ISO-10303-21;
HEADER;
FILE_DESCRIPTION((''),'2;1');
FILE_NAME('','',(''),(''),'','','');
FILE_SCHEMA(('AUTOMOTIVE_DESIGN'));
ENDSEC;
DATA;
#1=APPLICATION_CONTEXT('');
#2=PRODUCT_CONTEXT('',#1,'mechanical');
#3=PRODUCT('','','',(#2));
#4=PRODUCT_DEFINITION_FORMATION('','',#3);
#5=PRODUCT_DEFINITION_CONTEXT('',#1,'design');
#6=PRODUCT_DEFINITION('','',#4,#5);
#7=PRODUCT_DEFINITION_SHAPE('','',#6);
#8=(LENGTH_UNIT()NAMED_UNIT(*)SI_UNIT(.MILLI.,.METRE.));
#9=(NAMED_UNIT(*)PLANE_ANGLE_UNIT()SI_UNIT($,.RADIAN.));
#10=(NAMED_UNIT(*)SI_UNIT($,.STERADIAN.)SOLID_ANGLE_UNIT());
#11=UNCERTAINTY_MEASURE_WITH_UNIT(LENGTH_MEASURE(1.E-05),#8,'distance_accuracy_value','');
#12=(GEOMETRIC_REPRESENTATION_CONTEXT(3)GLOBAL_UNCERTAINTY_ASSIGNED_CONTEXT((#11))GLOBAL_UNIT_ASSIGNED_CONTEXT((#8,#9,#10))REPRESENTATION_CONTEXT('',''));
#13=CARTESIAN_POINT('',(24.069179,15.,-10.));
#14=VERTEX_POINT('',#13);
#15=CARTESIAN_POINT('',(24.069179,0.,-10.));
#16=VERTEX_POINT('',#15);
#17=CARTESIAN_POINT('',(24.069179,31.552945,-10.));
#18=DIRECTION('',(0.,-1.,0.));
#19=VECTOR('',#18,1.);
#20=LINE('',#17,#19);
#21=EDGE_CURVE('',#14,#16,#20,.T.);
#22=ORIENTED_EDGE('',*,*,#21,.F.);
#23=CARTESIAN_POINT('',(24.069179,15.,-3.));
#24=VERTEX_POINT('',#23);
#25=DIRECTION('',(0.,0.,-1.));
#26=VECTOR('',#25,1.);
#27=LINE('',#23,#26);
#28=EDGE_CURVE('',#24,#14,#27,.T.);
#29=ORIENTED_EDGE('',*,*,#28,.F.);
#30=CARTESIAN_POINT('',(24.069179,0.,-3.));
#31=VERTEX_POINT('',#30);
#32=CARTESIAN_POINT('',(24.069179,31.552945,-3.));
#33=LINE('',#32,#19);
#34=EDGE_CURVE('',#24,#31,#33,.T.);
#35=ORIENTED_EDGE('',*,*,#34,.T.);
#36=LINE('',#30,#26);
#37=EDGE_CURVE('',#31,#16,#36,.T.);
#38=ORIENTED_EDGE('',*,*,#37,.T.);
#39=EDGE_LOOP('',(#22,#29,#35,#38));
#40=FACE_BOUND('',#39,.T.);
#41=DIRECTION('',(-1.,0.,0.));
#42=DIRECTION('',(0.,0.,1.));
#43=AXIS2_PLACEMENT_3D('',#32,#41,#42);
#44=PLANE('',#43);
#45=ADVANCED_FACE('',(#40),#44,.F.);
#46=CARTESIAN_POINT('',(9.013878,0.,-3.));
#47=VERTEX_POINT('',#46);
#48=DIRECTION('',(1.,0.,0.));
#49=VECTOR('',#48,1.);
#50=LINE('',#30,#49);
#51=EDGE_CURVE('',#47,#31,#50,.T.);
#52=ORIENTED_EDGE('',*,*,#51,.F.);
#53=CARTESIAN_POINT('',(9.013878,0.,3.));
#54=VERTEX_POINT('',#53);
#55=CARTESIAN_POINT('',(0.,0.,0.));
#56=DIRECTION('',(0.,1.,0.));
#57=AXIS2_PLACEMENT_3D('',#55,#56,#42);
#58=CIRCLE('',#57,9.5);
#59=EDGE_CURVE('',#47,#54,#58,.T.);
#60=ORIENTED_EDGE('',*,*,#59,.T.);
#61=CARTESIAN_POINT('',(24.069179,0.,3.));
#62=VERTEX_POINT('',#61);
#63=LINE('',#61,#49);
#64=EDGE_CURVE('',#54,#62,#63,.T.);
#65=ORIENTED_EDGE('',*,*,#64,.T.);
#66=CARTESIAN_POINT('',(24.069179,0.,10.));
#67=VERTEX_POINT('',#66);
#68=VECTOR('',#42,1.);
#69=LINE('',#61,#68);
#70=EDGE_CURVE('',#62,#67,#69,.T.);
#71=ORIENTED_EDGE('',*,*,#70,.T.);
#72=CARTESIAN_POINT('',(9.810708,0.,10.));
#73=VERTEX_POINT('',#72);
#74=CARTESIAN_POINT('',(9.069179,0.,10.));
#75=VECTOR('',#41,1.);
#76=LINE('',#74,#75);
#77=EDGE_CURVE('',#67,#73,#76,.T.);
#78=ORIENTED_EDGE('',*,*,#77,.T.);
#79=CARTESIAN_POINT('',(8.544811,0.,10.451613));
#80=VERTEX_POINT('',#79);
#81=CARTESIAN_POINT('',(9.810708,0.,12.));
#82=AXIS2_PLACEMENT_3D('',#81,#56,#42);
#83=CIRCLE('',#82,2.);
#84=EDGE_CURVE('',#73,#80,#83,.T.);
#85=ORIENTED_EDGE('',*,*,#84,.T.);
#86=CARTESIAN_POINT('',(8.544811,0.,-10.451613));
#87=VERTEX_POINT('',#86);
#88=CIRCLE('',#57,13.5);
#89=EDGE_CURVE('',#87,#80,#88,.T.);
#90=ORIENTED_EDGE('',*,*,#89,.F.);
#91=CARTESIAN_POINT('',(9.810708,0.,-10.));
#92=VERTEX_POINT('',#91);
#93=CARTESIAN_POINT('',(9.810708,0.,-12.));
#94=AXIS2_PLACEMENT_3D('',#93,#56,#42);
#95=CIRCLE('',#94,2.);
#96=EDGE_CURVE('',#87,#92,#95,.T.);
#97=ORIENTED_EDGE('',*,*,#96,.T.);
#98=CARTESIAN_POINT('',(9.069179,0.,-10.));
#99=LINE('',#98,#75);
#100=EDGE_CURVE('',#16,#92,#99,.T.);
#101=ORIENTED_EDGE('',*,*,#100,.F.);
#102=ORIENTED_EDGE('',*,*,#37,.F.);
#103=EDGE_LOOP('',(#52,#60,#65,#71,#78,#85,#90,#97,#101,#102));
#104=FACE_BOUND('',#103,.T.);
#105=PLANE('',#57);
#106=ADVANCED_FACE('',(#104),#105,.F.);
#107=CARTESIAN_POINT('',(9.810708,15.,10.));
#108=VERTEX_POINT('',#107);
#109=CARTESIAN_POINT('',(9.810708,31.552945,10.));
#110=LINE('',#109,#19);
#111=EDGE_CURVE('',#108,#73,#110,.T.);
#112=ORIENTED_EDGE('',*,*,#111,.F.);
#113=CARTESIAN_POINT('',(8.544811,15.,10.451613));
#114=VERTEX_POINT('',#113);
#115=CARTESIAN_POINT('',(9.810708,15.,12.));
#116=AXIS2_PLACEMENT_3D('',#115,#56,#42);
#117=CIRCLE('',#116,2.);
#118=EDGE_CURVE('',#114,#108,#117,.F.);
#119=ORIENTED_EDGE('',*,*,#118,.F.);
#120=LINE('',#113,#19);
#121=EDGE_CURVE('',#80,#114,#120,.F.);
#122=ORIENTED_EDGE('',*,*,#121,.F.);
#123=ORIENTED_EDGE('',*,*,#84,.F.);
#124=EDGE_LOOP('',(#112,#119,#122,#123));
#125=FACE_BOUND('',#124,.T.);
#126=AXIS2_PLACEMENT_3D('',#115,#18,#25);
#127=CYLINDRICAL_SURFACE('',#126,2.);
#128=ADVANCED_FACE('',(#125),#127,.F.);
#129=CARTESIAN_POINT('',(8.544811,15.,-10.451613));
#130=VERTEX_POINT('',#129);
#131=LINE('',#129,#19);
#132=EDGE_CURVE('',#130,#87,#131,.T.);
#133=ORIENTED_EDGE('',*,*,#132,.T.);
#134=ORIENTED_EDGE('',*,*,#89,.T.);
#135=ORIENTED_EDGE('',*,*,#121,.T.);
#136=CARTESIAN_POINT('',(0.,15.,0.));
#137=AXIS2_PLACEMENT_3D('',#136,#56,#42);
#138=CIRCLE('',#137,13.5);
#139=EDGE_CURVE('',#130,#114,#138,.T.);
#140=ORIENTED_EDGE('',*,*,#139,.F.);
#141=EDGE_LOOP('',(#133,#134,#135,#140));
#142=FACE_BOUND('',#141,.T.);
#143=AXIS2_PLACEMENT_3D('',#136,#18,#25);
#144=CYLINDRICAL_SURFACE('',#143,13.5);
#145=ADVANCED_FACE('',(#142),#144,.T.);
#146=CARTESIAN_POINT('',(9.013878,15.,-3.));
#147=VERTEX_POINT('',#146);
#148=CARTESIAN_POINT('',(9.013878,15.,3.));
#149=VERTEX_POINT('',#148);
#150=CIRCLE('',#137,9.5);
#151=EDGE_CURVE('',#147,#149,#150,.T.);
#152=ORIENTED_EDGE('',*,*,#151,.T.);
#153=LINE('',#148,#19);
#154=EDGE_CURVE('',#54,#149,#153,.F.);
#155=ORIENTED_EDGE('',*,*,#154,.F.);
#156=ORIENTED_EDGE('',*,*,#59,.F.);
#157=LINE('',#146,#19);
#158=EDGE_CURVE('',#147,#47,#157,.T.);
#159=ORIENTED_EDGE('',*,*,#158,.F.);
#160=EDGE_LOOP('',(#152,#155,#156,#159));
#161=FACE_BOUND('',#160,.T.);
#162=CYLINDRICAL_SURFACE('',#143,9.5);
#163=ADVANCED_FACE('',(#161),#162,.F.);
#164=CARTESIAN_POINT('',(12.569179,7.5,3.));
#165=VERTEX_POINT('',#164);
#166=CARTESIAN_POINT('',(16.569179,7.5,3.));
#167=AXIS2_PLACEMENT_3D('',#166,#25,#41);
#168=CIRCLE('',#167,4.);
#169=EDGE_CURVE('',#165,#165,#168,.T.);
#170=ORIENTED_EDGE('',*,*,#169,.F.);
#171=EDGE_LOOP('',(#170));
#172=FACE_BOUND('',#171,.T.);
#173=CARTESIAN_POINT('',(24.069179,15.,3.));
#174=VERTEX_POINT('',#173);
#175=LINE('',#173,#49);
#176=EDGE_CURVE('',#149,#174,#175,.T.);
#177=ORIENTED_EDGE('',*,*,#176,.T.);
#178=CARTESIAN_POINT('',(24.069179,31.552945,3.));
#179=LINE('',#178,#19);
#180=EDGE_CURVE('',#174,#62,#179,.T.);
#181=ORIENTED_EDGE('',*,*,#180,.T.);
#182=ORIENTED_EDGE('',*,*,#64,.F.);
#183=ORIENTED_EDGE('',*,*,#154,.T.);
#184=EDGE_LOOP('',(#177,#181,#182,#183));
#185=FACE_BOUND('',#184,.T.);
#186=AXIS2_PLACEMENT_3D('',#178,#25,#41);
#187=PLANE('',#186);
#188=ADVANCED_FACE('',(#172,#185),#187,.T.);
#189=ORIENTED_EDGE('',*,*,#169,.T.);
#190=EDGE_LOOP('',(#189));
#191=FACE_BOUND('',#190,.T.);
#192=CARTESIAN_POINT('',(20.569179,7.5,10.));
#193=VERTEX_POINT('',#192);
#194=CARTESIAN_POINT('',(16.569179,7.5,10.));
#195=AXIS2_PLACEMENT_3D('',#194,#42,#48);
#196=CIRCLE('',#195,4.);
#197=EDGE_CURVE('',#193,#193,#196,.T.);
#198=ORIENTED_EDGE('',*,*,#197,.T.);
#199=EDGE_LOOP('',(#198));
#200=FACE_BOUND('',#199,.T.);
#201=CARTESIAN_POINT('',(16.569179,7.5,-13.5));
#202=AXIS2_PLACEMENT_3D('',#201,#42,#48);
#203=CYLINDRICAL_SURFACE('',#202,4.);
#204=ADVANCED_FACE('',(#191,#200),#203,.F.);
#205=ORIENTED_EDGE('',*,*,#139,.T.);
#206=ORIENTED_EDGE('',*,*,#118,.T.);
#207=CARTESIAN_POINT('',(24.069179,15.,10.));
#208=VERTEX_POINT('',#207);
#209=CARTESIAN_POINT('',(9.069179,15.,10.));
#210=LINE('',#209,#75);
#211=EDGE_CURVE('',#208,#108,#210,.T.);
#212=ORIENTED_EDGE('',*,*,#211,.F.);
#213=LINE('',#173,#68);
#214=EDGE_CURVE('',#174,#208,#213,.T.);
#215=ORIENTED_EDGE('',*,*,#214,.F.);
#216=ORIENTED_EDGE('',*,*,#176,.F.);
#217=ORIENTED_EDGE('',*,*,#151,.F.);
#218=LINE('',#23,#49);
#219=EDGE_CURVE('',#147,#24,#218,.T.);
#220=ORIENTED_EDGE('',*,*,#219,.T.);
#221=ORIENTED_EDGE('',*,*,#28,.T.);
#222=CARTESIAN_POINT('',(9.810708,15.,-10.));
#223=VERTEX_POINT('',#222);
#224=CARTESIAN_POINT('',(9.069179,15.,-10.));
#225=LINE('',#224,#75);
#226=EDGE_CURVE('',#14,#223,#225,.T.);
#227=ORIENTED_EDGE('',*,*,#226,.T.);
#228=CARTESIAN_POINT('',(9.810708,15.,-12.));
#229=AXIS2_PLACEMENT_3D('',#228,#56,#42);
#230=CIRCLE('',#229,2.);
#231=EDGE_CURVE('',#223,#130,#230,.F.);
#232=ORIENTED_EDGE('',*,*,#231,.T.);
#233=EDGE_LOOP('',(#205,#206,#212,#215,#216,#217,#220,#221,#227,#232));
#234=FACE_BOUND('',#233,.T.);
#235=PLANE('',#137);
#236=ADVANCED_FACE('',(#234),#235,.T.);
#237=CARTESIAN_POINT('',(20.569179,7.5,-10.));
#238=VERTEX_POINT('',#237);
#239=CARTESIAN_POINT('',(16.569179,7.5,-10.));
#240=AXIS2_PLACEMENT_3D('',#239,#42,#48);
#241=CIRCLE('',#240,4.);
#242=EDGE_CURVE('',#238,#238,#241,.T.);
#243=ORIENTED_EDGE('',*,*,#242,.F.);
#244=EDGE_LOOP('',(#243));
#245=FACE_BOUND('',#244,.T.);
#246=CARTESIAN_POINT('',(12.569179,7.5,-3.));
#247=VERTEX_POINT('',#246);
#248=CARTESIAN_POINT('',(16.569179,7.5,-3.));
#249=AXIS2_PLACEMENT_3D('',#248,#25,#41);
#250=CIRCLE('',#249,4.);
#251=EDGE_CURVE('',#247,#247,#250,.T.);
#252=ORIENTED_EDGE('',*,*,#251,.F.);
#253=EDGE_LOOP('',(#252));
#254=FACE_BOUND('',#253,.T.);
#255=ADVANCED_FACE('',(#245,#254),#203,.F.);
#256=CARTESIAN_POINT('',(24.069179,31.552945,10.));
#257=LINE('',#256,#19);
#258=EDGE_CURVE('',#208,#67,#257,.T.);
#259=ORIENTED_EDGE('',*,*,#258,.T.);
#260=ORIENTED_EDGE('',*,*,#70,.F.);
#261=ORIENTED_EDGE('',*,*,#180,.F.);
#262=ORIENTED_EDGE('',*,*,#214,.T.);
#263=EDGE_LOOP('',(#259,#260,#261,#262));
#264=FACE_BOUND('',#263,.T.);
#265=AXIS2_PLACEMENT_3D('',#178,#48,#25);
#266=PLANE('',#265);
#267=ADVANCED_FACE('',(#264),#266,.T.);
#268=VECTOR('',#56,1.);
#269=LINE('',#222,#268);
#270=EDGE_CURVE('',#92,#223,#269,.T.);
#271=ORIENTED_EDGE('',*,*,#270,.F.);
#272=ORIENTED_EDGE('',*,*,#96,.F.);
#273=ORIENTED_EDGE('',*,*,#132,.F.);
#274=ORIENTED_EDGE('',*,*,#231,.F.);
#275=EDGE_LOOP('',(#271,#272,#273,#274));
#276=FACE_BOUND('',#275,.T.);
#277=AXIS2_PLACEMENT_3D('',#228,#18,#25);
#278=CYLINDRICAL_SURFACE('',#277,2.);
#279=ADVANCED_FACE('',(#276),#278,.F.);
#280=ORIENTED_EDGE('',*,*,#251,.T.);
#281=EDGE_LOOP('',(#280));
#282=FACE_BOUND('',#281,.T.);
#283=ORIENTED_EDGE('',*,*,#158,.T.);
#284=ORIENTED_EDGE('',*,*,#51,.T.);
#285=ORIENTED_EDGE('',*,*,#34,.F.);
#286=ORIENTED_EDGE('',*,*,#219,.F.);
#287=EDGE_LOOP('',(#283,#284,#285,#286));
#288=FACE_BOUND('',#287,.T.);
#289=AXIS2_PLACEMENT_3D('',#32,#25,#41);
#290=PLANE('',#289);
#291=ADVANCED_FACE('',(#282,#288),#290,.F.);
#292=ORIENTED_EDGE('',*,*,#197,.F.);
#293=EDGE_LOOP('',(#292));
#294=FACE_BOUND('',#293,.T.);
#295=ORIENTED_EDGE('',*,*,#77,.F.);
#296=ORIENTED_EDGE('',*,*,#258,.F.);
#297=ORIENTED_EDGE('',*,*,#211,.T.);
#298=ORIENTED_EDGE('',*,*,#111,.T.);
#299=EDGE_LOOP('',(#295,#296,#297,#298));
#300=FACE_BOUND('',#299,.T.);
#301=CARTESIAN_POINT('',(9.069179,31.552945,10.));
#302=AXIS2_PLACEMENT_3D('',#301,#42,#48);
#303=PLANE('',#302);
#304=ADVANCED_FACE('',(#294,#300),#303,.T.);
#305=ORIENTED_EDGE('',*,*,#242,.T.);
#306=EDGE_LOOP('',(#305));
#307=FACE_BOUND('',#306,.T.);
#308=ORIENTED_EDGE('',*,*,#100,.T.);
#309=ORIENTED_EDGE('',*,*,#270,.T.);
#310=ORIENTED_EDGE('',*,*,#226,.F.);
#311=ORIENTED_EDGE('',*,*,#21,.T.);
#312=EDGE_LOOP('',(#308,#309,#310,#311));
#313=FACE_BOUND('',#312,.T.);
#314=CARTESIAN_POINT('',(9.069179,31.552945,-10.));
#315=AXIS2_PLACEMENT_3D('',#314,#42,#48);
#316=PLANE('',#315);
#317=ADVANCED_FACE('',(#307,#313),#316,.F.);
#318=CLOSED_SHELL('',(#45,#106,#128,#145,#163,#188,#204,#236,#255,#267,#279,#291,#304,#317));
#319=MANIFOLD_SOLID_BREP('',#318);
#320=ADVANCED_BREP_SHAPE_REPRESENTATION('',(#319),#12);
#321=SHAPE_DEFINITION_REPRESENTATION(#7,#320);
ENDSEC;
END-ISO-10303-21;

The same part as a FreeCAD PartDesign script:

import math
import FreeCAD as App
import Part
import Sketcher
Q = App.Units.Quantity


def edges_at(feature, points):
    """Names of the edges that pass closest to the given points."""
    edges = feature.Shape.Edges
    near = lambda p: min(range(len(edges)), key=lambda i: edges[i].distToShape(Part.Vertex(*p))[0])
    return sorted({f"Edge{near(p) + 1}" for p in points})


def add_polygon(sketch, points):
    """Adds a closed chain of lines whose ends are joined by coincident constraints."""
    first, n = sketch.GeometryCount, len(points)
    for a, b in zip(points, points[1:] + points[:1]):
        sketch.addGeometry(Part.LineSegment(App.Vector(*a, 0), App.Vector(*b, 0)), False)
    for i in range(n):
        sketch.addConstraint(Sketcher.Constraint("Coincident", first + i, 2, first + (i + 1) % n, 1))

doc = App.newDocument("Part")
params = doc.addObject("Spreadsheet::Sheet", "Params")
for row, (alias, value) in enumerate([
    ("sketch1_diameter", "27 mm"),
    ("sketch1_diameter2", "19 mm"),
    ("pad1_length", "15 mm"),
    ("sketch2_radius", "13.5 mm"),
    ("sketch2_width", "15 mm"),
    ("sketch2_height", "7 mm"),
    ("pad2_length", "15 mm"),
    ("sketch3_height", "6 mm"),
    ("sketch4_diameter", "8 mm"),
    ("fillet_radius", "2 mm"),
    ("fillet2_radius", "2 mm"),
], start=1):
    params.set(f"A{row}", alias)
    params.set(f"B{row}", "=" + value)
    params.setAlias(f"B{row}", alias)

body = doc.addObject("PartDesign::Body", "Body")

# Sketch on XZ plane
sketch1 = body.newObject("Sketcher::SketchObject", "Sketch")
sketch1.AttachmentSupport = (doc.getObject("XZ_Plane"), [""])
sketch1.MapMode = "FlatFace"
sketch1.addGeometry([
    Part.Circle(App.Vector(0, 0, 0), App.Vector(0, 0, 1), 14),
    Part.Circle(App.Vector(0, 0, 0), App.Vector(0, 0, 1), 10),
], False)
sketch1.addConstraint([
    Sketcher.Constraint("Coincident", 0, 3, -1, 1),
    Sketcher.Constraint("Coincident", 1, 3, -1, 1),
    Sketcher.Constraint("Diameter", 0, Q("27 mm")),
    Sketcher.Constraint("Diameter", 1, Q("19 mm")),
])
sketch1.setExpression("Constraints[2]", "Params.sketch1_diameter")
sketch1.setExpression("Constraints[3]", "Params.sketch1_diameter2")
pad1 = body.newObject("PartDesign::Pad", "Pad")
pad1.Profile = sketch1
pad1.setExpression("Length", "Params.pad1_length")
pad1.Reversed = True

# Sketch on XZ plane
sketch2 = body.newObject("Sketcher::SketchObject", "Sketch001")
sketch2.AttachmentSupport = (doc.getObject("XZ_Plane"), [""])
sketch2.MapMode = "FlatFace"
sketch2.addGeometry([
    Part.LineSegment(App.Vector(13, -3, 0), App.Vector(24, -3, 0)),
    Part.LineSegment(App.Vector(24, -3, 0), App.Vector(24, -10, 0)),
    Part.LineSegment(App.Vector(24, -10, 0), App.Vector(9, -10, 0)),
    Part.ArcOfCircle(Part.Circle(App.Vector(0, 0, 0), App.Vector(0, 0, 1), 13), math.radians(-48), math.radians(-13)),
], False)
sketch2.addConstraint([
    Sketcher.Constraint("Coincident", 0, 2, 1, 1),
    Sketcher.Constraint("Coincident", 1, 2, 2, 1),
    Sketcher.Constraint("Coincident", 2, 2, 3, 1),
    Sketcher.Constraint("Coincident", 3, 2, 0, 1),
    Sketcher.Constraint("Horizontal", 0),
    Sketcher.Constraint("Vertical", 1),
    Sketcher.Constraint("Horizontal", 2),
    Sketcher.Constraint("Coincident", 3, 3, -1, 1),
    Sketcher.Constraint("Radius", 3, Q("13.5 mm")),
    Sketcher.Constraint("DistanceX", 2, 2, 2, 1, Q("15 mm")),
    Sketcher.Constraint("DistanceY", 1, 2, 1, 1, Q("7 mm")),
    Sketcher.Constraint("DistanceY", 0, 2, -1, 1, Q("3 mm")),
])
sketch2.setExpression("Constraints[8]", "Params.sketch2_radius")
sketch2.setExpression("Constraints[9]", "Params.sketch2_width")
sketch2.setExpression("Constraints[10]", "Params.sketch2_height")
pad2 = body.newObject("PartDesign::Pad", "Pad001")
pad2.Profile = sketch2
pad2.setExpression("Length", "Params.pad2_length")
pad2.Reversed = True
doc.recompute()

mirrored = body.newObject("PartDesign::Mirrored", "Mirrored")
mirrored.Originals = [pad2]
mirrored.MirrorPlane = (doc.getObject("XY_Plane"), [""])
body.Tip = mirrored

# Sketch on XZ plane
sketch3 = body.newObject("Sketcher::SketchObject", "Sketch002")
sketch3.AttachmentSupport = (doc.getObject("XZ_Plane"), [""])
sketch3.MapMode = "FlatFace"
sketch3.AttachmentOffset = App.Placement(App.Vector(0, 0, -15), App.Rotation())
add_polygon(sketch3, [(0, -3), (0, 3), (24, 3), (24, -3)])  # lines 0-3
sketch3.addConstraint([
    Sketcher.Constraint("Vertical", 0),
    Sketcher.Constraint("Horizontal", 1),
    Sketcher.Constraint("Vertical", 2),
    Sketcher.Constraint("Horizontal", 3),
    Sketcher.Constraint("Symmetric", 0, 2, 3, 2, -1, 1),
    Sketcher.Constraint("DistanceY", 0, 1, 0, 2, Q("6 mm")),
    Sketcher.Constraint("DistanceX", 1, 1, 1, 2, Q("24.069179 mm")),
])
sketch3.setExpression("Constraints[9]", "Params.sketch3_height")
pocket1 = body.newObject("PartDesign::Pocket", "Pocket")
pocket1.Profile = sketch3
pocket1.Type = "ThroughAll"
pocket1.Reversed = True

# Sketch on XY plane
sketch4 = body.newObject("Sketcher::SketchObject", "Sketch003")
sketch4.AttachmentSupport = (doc.getObject("XY_Plane"), [""])
sketch4.MapMode = "FlatFace"
sketch4.AttachmentOffset = App.Placement(App.Vector(0, 0, 10), App.Rotation())
sketch4.addGeometry(Part.Circle(App.Vector(16.6, 7.5, 0), App.Vector(0, 0, 1), 4), False)
sketch4.addConstraint([
    Sketcher.Constraint("Diameter", 0, Q("8 mm")),
    Sketcher.Constraint("DistanceY", -1, 1, 0, 3, Q("7.5 mm")),
    Sketcher.Constraint("DistanceX", -1, 1, 0, 3, Q("16.569179 mm")),
])
sketch4.setExpression("Constraints[0]", "Params.sketch4_diameter")
pocket2 = body.newObject("PartDesign::Pocket", "Pocket001")
pocket2.Profile = sketch4
pocket2.Type = "ThroughAll"
doc.recompute()

fillet = body.newObject("PartDesign::Fillet", "Fillet")
fillet.Base = (pocket2, edges_at(pocket2, [(9.069, 7.5, 10)]))
fillet.setExpression("Radius", "Params.fillet_radius")
doc.recompute()

fillet2 = body.newObject("PartDesign::Fillet", "Fillet001")
fillet2.Base = (fillet, edges_at(fillet, [(9.069, 7.5, -10)]))
fillet2.setExpression("Radius", "Params.fillet2_radius")

doc.recompute()
